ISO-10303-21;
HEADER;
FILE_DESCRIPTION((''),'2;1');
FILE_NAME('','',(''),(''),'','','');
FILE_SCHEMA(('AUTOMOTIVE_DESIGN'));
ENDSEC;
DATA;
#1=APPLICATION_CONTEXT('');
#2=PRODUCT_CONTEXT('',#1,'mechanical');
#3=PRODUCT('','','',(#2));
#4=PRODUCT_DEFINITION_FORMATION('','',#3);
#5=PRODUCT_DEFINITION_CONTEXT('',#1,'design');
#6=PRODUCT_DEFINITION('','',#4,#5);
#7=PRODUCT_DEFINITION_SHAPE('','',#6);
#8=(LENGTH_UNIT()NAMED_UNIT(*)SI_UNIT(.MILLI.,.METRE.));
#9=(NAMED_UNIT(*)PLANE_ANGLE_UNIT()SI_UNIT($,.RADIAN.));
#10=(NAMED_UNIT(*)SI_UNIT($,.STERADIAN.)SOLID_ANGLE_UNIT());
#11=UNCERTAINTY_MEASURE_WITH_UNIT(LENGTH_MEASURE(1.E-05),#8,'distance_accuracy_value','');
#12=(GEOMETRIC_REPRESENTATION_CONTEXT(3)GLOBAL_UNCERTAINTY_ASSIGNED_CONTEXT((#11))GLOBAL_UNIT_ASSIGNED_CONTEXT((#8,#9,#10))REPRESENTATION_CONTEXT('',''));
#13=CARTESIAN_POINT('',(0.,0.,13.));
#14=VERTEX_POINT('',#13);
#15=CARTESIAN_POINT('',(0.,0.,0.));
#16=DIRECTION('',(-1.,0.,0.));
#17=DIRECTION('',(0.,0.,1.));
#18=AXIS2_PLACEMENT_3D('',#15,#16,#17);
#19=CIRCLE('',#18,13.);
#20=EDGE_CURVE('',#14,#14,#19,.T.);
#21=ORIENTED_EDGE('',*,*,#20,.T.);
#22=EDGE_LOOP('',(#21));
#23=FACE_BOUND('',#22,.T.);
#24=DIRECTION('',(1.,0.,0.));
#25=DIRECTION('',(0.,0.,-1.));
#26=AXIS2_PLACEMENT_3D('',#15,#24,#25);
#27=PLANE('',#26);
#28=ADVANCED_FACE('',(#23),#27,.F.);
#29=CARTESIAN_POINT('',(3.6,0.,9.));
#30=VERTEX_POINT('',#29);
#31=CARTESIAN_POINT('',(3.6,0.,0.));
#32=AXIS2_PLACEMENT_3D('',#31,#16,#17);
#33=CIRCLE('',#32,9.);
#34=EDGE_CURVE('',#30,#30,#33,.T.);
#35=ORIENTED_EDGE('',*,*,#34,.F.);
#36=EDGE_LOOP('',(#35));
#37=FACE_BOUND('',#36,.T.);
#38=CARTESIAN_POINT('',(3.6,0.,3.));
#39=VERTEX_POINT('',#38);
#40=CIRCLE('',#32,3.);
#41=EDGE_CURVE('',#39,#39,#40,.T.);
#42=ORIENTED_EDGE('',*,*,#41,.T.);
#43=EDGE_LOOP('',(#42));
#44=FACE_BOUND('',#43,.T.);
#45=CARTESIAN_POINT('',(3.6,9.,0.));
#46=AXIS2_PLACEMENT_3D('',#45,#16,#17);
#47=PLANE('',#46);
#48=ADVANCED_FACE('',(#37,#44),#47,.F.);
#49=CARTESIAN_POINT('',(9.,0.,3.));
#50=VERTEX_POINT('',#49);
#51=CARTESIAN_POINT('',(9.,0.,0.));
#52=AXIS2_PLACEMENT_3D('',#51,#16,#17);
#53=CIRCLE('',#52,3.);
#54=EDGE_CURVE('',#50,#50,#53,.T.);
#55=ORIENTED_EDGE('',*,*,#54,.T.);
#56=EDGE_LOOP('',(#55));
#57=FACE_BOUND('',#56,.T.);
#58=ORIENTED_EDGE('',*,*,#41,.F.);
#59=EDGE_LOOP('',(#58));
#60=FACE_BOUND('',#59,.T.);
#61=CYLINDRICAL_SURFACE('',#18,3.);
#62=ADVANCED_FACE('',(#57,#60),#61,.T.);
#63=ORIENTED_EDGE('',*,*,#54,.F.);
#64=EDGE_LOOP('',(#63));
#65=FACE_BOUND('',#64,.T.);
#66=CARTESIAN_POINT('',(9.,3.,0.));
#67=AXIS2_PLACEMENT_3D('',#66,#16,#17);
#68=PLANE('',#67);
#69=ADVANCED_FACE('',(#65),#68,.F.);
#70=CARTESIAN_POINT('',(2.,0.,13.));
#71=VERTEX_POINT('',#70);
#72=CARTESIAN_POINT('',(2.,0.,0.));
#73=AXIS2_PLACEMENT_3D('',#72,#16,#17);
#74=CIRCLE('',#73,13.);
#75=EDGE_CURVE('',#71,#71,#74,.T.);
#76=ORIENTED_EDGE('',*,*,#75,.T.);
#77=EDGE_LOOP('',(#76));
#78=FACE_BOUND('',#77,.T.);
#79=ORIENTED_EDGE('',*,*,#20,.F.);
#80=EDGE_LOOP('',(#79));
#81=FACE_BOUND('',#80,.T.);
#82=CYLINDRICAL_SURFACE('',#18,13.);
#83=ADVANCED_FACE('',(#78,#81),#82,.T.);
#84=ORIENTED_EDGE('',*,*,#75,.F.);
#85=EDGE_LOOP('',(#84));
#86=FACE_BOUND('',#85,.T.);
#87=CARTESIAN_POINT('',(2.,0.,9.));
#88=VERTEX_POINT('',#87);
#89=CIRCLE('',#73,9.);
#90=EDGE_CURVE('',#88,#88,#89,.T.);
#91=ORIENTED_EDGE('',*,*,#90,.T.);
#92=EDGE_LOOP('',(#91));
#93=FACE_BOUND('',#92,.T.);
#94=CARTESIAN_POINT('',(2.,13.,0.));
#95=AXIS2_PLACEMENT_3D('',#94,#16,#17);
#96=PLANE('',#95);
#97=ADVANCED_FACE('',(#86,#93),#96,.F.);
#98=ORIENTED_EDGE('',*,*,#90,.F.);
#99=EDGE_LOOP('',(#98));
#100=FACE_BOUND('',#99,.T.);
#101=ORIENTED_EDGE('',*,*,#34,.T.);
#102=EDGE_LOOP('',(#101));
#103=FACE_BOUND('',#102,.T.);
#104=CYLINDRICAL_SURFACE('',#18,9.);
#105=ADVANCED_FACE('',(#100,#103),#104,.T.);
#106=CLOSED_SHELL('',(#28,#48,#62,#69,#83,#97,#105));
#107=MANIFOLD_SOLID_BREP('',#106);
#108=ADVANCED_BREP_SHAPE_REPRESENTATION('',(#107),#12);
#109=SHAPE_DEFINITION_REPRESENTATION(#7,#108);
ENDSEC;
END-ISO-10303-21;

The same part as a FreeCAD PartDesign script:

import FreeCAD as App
import Part
import Sketcher

doc = App.newDocument("Part")
body = doc.addObject("PartDesign::Body", "Body")

sketch1 = body.newObject("Sketcher::SketchObject", "Sketch")
sketch1.AttachmentSupport = (doc.getObject("XY_Plane"), [""])
sketch1.MapMode = "FlatFace"
sketch1.addGeometry([
    Part.LineSegment(App.Vector(0, 13, 0), App.Vector(0, 0, 0)),
    Part.LineSegment(App.Vector(0, 0, 0), App.Vector(9, 0, 0)),
    Part.LineSegment(App.Vector(9, 0, 0), App.Vector(9, 3, 0)),
    Part.LineSegment(App.Vector(9, 3, 0), App.Vector(3.6, 3, 0)),
    Part.LineSegment(App.Vector(3.6, 3, 0), App.Vector(3.6, 9, 0)),
    Part.LineSegment(App.Vector(3.6, 9, 0), App.Vector(2, 9, 0)),
    Part.LineSegment(App.Vector(2, 9, 0), App.Vector(2, 13, 0)),
    Part.LineSegment(App.Vector(2, 13, 0), App.Vector(0, 13, 0)),
], False)
sketch1.addConstraint([
    Sketcher.Constraint("Coincident", 0, 2, 1, 1),
    Sketcher.Constraint("Coincident", 1, 2, 2, 1),
    Sketcher.Constraint("Coincident", 2, 2, 3, 1),
    Sketcher.Constraint("Coincident", 3, 2, 4, 1),
    Sketcher.Constraint("Coincident", 4, 2, 5, 1),
    Sketcher.Constraint("Coincident", 5, 2, 6, 1),
    Sketcher.Constraint("Coincident", 6, 2, 7, 1),
    Sketcher.Constraint("Coincident", 7, 2, 0, 1),
    Sketcher.Constraint("Vertical", 0),
    Sketcher.Constraint("Horizontal", 1),
    Sketcher.Constraint("Vertical", 2),
    Sketcher.Constraint("Horizontal", 3),
    Sketcher.Constraint("Vertical", 4),
    Sketcher.Constraint("Horizontal", 5),
    Sketcher.Constraint("Vertical", 6),
    Sketcher.Constraint("Horizontal", 7),
    Sketcher.Constraint("Coincident", 0, 2, -1, 1),
    Sketcher.Constraint("DistanceX", 1, 1, 1, 2, 9.0),
    Sketcher.Constraint("DistanceX", 7, 2, 7, 1, 2.0),
    Sketcher.Constraint("DistanceY", 0, 2, 0, 1, 13.0),
    Sketcher.Constraint("DistanceY", 2, 1, 2, 2, 3.0),
    Sketcher.Constraint("DistanceY", 4, 1, 4, 2, 6.0),
    Sketcher.Constraint("DistanceX", 3, 2, 3, 1, 5.4),
])
revolution = body.newObject("PartDesign::Revolution", "Revolution")
revolution.Profile = sketch1
revolution.ReferenceAxis = (sketch1, ["H_Axis"])
revolution.Angle = 360

doc.recompute()
